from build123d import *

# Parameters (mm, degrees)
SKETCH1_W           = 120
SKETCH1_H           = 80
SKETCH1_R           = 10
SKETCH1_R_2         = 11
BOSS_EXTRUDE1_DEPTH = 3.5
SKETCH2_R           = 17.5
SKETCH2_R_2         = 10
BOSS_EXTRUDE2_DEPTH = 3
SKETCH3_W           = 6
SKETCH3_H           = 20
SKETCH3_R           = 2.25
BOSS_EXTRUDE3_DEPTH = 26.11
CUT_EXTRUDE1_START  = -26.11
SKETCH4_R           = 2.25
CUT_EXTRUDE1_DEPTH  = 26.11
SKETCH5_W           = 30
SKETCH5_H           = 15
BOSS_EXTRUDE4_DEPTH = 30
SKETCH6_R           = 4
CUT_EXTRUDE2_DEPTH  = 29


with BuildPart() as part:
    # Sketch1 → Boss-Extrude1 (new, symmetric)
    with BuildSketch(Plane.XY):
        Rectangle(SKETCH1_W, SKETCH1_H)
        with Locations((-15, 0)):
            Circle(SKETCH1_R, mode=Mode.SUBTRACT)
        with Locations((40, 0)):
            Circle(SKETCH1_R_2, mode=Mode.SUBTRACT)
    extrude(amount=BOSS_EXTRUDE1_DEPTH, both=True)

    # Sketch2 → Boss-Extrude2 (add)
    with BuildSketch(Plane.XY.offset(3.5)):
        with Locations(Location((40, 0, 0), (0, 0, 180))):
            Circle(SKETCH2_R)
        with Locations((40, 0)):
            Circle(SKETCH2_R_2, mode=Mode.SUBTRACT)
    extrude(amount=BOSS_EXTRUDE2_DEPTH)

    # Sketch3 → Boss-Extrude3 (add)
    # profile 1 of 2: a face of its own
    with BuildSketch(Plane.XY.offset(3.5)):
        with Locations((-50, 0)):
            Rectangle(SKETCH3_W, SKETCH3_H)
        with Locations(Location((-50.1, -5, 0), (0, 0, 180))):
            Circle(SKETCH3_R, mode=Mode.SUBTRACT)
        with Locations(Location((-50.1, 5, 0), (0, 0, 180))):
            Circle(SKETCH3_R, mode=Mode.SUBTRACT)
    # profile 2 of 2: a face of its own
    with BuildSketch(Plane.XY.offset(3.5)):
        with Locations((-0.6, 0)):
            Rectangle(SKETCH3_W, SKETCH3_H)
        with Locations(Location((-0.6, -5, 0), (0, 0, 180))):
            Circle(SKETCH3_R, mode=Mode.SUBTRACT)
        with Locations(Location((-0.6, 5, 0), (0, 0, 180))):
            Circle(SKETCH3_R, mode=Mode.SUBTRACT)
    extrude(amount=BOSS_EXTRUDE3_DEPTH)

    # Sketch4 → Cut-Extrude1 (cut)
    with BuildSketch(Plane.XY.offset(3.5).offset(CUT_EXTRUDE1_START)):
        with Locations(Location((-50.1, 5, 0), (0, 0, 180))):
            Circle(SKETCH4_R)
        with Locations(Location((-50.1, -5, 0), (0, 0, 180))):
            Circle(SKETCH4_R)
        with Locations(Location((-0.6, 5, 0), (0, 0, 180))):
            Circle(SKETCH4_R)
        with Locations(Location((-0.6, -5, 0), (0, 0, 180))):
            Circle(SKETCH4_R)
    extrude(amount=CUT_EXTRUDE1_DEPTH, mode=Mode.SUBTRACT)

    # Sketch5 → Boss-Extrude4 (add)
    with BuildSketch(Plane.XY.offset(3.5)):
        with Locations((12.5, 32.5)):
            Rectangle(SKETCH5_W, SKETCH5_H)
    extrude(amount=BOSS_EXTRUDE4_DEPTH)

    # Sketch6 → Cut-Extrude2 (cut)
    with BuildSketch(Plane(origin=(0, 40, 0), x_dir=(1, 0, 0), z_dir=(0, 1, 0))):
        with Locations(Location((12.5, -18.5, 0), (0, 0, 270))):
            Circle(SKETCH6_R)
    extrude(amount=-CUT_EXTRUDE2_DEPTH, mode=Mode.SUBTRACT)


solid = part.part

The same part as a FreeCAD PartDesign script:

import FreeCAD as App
import Part
import Sketcher

V = App.Vector


def add_polygon(sketch, points):
    """Adds a closed chain of lines whose ends are joined by coincident constraints."""
    first, n = sketch.GeometryCount, len(points)
    for a, b in zip(points, points[1:] + points[:1]):
        sketch.addGeometry(Part.LineSegment(App.Vector(*a, 0), App.Vector(*b, 0)), False)
    for i in range(n):
        sketch.addConstraint(Sketcher.Constraint("Coincident", first + i, 2, first + (i + 1) % n, 1))

doc = App.newDocument("Part")
body = doc.addObject("PartDesign::Body", "Body")

sketch1 = body.newObject("Sketcher::SketchObject", "Sketch")
sketch1.AttachmentSupport = (doc.getObject("XY_Plane"), [""])
sketch1.MapMode = "FlatFace"
add_polygon(sketch1, [(-60, 40), (-60, -40), (60, -40), (60, 40)])
sketch1.addGeometry(Part.Circle(V(-15, 0, 0), V(0, 0, 1), 10), False)
sketch1.addGeometry(Part.Circle(V(40, 0, 0), V(0, 0, 1), 11), False)
sketch1.addConstraint(Sketcher.Constraint("Vertical", 0))
sketch1.addConstraint(Sketcher.Constraint("Horizontal", 1))
sketch1.addConstraint(Sketcher.Constraint("Vertical", 2))
sketch1.addConstraint(Sketcher.Constraint("Horizontal", 3))
sketch1.addConstraint(Sketcher.Constraint("Symmetric", 0, 2, 2, 2, -1, 1))
sketch1.addConstraint(Sketcher.Constraint("PointOnObject", 4, 3, -1))
sketch1.addConstraint(Sketcher.Constraint("PointOnObject", 5, 3, -1))
sketch1.addConstraint(Sketcher.Constraint("Diameter", 4, 20.0))
sketch1.addConstraint(Sketcher.Constraint("Diameter", 5, 22.0))
sketch1.addConstraint(Sketcher.Constraint("DistanceX", 1, 1, 1, 2, 120.0))
sketch1.addConstraint(Sketcher.Constraint("DistanceY", 0, 2, 0, 1, 80.0))
sketch1.addConstraint(Sketcher.Constraint("DistanceX", 4, 3, -1, 1, 15.0))
sketch1.addConstraint(Sketcher.Constraint("DistanceX", -1, 1, 5, 3, 40.0))
pad1 = body.newObject("PartDesign::Pad", "Pad")
pad1.Profile = sketch1
pad1.Length = 7
pad1.Midplane = True

sketch2 = body.newObject("Sketcher::SketchObject", "Sketch001")
sketch2.AttachmentSupport = (doc.getObject("XY_Plane"), [""])
sketch2.MapMode = "FlatFace"
sketch2.AttachmentOffset = App.Placement(V(0, 0, 3.5), App.Rotation())
sketch2.addGeometry(Part.Circle(V(40, 0, 0), V(0, 0, 1), 18), False)
sketch2.addGeometry(Part.Circle(V(40, 0, 0), V(0, 0, 1), 10), False)
sketch2.addConstraint(Sketcher.Constraint("Coincident", 1, 3, 0, 3))
sketch2.addConstraint(Sketcher.Constraint("PointOnObject", 0, 3, -1))
sketch2.addConstraint(Sketcher.Constraint("Diameter", 0, 35.0))
sketch2.addConstraint(Sketcher.Constraint("Diameter", 1, 20.0))
sketch2.addConstraint(Sketcher.Constraint("DistanceX", -1, 1, 0, 3, 40.0))
pad2 = body.newObject("PartDesign::Pad", "Pad001")
pad2.Profile = sketch2
pad2.Length = 3

sketch3 = body.newObject("Sketcher::SketchObject", "Sketch002")
sketch3.AttachmentSupport = (doc.getObject("XY_Plane"), [""])
sketch3.MapMode = "FlatFace"
sketch3.AttachmentOffset = App.Placement(V(0, 0, 3.5), App.Rotation())
add_polygon(sketch3, [(-53, 10), (-53, -10), (-47, -10), (-47, 10)])
sketch3.addGeometry(Part.Circle(V(-50.1, -5, 0), V(0, 0, 1), 2.2), False)
sketch3.addGeometry(Part.Circle(V(-50.1, 5, 0), V(0, 0, 1), 2.2), False)
add_polygon(sketch3, [(-3.6, 10), (-3.6, -10), (2.4, -10), (2.4, 10)])
sketch3.addGeometry(Part.Circle(V(-0.6, -5, 0), V(0, 0, 1), 2.2), False)
sketch3.addGeometry(Part.Circle(V(-0.6, 5, 0), V(0, 0, 1), 2.2), False)
sketch3.addConstraint(Sketcher.Constraint("Vertical", 0))
sketch3.addConstraint(Sketcher.Constraint("Horizontal", 1))
sketch3.addConstraint(Sketcher.Constraint("Vertical", 2))
sketch3.addConstraint(Sketcher.Constraint("Horizontal", 3))
sketch3.addConstraint(Sketcher.Constraint("Vertical", 6))
sketch3.addConstraint(Sketcher.Constraint("Horizontal", 7))
sketch3.addConstraint(Sketcher.Constraint("Vertical", 8))
sketch3.addConstraint(Sketcher.Constraint("Horizontal", 9))
sketch3.addConstraint(Sketcher.Constraint("Equal", 4, 5))
sketch3.addConstraint(Sketcher.Constraint("Equal", 5, 10))
sketch3.addConstraint(Sketcher.Constraint("Equal", 10, 11))
sketch3.addConstraint(Sketcher.Constraint("Symmetric", 4, 3, 5, 3, -1))
sketch3.addConstraint(Sketcher.Constraint("Symmetric", 10, 3, 11, 3, -1))
sketch3.addConstraint(Sketcher.Constraint("Horizontal", 4, 3, 10, 3))
sketch3.addConstraint(Sketcher.Constraint("Horizontal", 1, 2, 6, 2))
sketch3.addConstraint(Sketcher.Constraint("Horizontal", 3, 2, 8, 2))
sketch3.addConstraint(Sketcher.Constraint("Equal", 3, 7))
sketch3.addConstraint(Sketcher.Constraint("Diameter", 4, 4.5))
sketch3.addConstraint(Sketcher.Constraint("DistanceX", 1, 1, 1, 2, 6.0))
sketch3.addConstraint(Sketcher.Constraint("DistanceY", 0, 2, 0, 1, 20.0))
sketch3.addConstraint(Sketcher.Constraint("DistanceY", 4, 3, -1, 1, 5.0))
sketch3.addConstraint(Sketcher.Constraint("DistanceX", 0, 2, -1, 1, 53.0))
sketch3.addConstraint(Sketcher.Constraint("DistanceY", 0, 2, -1, 1, 10.0))
sketch3.addConstraint(Sketcher.Constraint("DistanceX", 6, 2, 10, 3, 3.0))
sketch3.addConstraint(Sketcher.Constraint("DistanceX", 4, 3, -1, 1, 50.1))
sketch3.addConstraint(Sketcher.Constraint("DistanceX", 10, 3, -1, 1, 0.6))
pad3 = body.newObject("PartDesign::Pad", "Pad002")
pad3.Profile = sketch3
pad3.Length = 26.11

sketch4 = body.newObject("Sketcher::SketchObject", "Sketch003")
sketch4.AttachmentSupport = (doc.getObject("XY_Plane"), [""])
sketch4.MapMode = "FlatFace"
sketch4.AttachmentOffset = App.Placement(V(0, 0, -22.61), App.Rotation())
sketch4.addGeometry(Part.Circle(V(-50.1, 5, 0), V(0, 0, 1), 2.2), False)
sketch4.addGeometry(Part.Circle(V(-50.1, -5, 0), V(0, 0, 1), 2.2), False)
sketch4.addGeometry(Part.Circle(V(-0.6, 5, 0), V(0, 0, 1), 2.2), False)
sketch4.addGeometry(Part.Circle(V(-0.6, -5, 0), V(0, 0, 1), 2.2), False)
sketch4.addConstraint(Sketcher.Constraint("Equal", 0, 1))
sketch4.addConstraint(Sketcher.Constraint("Equal", 1, 2))
sketch4.addConstraint(Sketcher.Constraint("Equal", 2, 3))
sketch4.addConstraint(Sketcher.Constraint("Symmetric", 0, 3, 1, 3, -1))
sketch4.addConstraint(Sketcher.Constraint("Symmetric", 2, 3, 3, 3, -1))
sketch4.addConstraint(Sketcher.Constraint("Horizontal", 0, 3, 2, 3))
sketch4.addConstraint(Sketcher.Constraint("Diameter", 0, 4.5))
sketch4.addConstraint(Sketcher.Constraint("DistanceY", -1, 1, 0, 3, 5.0))
sketch4.addConstraint(Sketcher.Constraint("DistanceX", 0, 3, -1, 1, 50.1))
sketch4.addConstraint(Sketcher.Constraint("DistanceX", 2, 3, -1, 1, 0.6))
pocket1 = body.newObject("PartDesign::Pocket", "Pocket")
pocket1.Profile = sketch4
pocket1.Length = 26.11
pocket1.Reversed = True

sketch5 = body.newObject("Sketcher::SketchObject", "Sketch004")
sketch5.AttachmentSupport = (doc.getObject("XY_Plane"), [""])
sketch5.MapMode = "FlatFace"
sketch5.AttachmentOffset = App.Placement(V(0, 0, 3.5), App.Rotation())
add_polygon(sketch5, [(-2, 40), (-2, 25), (28, 25), (28, 40)])
sketch5.addConstraint(Sketcher.Constraint("Vertical", 0))
sketch5.addConstraint(Sketcher.Constraint("Horizontal", 1))
sketch5.addConstraint(Sketcher.Constraint("Vertical", 2))
sketch5.addConstraint(Sketcher.Constraint("Horizontal", 3))
sketch5.addConstraint(Sketcher.Constraint("DistanceX", 1, 1, 1, 2, 30.0))
sketch5.addConstraint(Sketcher.Constraint("DistanceY", 0, 2, 0, 1, 15.0))
sketch5.addConstraint(Sketcher.Constraint("DistanceY", -1, 1, 0, 2, 25.0))
sketch5.addConstraint(Sketcher.Constraint("DistanceX", 0, 2, -1, 1, 2.5))
pad4 = body.newObject("PartDesign::Pad", "Pad003")
pad4.Profile = sketch5
pad4.Length = 30

sketch6 = body.newObject("Sketcher::SketchObject", "Sketch005")
sketch6.AttachmentSupport = (doc.getObject("XZ_Plane"), [""])
sketch6.MapMode = "FlatFace"
sketch6.AttachmentOffset = App.Placement(V(0, 0, -40), App.Rotation())
sketch6.addGeometry(Part.Circle(V(12.5, 18.5, 0), V(0, 0, 1), 4), False)
sketch6.addConstraint(Sketcher.Constraint("Diameter", 0, 8.0))
sketch6.addConstraint(Sketcher.Constraint("DistanceX", -1, 1, 0, 3, 12.5))
sketch6.addConstraint(Sketcher.Constraint("DistanceY", -1, 1, 0, 3, 18.5))
pocket2 = body.newObject("PartDesign::Pocket", "Pocket001")
pocket2.Profile = sketch6
pocket2.Length = 29
pocket2.Reversed = True

doc.recompute()
